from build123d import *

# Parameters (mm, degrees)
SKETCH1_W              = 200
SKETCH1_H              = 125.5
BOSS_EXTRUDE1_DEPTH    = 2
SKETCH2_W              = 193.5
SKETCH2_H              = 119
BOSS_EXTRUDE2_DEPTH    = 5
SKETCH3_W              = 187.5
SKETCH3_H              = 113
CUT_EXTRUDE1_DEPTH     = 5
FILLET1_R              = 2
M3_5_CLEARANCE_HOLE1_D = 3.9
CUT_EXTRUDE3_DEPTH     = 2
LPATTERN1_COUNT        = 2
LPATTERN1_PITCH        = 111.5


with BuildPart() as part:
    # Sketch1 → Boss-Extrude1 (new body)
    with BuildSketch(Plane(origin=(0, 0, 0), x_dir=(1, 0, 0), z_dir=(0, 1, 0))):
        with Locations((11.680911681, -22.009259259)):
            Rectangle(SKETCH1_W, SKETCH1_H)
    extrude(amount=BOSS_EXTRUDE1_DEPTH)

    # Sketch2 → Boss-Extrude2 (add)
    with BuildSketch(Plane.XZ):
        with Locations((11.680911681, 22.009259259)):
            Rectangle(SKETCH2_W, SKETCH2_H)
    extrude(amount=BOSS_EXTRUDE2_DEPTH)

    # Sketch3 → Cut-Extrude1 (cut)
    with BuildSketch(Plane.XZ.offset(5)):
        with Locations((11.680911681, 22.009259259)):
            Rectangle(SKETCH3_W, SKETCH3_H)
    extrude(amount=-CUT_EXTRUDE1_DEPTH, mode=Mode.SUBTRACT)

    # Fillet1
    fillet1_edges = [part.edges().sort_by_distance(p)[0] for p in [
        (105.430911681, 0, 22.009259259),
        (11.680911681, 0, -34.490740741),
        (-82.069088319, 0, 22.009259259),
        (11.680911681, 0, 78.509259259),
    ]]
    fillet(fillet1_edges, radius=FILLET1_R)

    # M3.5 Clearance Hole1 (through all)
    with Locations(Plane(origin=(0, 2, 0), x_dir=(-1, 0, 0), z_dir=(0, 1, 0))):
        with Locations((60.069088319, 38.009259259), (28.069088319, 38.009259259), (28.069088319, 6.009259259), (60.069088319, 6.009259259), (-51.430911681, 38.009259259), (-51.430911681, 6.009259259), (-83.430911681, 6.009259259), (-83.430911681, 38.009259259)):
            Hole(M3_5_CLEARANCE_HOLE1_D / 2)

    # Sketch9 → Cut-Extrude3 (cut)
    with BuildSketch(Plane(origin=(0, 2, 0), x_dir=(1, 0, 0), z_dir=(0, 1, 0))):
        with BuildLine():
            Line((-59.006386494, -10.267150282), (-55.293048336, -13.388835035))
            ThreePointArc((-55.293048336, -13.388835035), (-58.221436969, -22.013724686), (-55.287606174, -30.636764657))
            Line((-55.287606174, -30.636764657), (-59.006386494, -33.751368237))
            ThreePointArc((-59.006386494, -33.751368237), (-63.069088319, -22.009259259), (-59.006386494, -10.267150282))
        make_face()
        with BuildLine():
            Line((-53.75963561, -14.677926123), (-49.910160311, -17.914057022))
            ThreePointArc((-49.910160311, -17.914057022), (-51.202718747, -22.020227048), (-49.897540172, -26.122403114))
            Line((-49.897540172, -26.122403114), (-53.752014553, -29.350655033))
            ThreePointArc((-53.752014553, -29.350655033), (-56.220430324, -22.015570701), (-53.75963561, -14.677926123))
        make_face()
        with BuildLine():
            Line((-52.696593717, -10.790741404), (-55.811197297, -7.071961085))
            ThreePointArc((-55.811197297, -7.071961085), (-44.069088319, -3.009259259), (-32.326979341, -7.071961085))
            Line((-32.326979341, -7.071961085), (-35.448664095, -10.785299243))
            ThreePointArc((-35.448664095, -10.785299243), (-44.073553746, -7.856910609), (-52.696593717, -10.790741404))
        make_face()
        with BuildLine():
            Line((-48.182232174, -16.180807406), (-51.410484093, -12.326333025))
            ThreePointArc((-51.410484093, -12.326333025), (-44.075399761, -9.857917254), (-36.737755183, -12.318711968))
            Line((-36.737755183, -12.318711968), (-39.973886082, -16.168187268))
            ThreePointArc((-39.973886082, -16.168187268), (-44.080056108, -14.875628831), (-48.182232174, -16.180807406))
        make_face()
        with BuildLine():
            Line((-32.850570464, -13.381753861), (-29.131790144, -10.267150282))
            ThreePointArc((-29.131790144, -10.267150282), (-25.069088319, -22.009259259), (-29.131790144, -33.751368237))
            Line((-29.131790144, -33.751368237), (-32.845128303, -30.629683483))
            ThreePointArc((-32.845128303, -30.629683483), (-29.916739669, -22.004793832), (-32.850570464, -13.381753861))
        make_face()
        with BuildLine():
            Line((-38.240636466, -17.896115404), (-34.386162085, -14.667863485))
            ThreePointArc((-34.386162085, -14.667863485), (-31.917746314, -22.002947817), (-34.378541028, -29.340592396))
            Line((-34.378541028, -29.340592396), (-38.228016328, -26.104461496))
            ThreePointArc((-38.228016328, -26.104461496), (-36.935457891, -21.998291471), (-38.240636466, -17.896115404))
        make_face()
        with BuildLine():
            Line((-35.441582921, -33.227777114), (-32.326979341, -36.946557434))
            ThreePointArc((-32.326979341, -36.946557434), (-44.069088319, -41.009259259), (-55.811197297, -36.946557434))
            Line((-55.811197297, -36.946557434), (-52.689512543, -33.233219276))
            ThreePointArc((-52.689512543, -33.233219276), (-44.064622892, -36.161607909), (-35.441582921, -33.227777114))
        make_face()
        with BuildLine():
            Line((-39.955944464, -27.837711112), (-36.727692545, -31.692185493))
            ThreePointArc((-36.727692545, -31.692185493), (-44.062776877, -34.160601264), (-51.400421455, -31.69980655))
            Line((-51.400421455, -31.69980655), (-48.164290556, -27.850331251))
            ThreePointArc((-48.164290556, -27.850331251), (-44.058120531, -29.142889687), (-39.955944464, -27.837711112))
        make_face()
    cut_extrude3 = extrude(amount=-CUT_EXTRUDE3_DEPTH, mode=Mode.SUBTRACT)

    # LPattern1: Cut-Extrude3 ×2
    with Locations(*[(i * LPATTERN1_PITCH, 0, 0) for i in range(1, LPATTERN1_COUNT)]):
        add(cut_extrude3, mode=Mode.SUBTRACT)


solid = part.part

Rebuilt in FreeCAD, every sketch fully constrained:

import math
import FreeCAD as App
import Part
import Sketcher
Q = App.Units.Quantity


def edges_at(feature, points):
    """Names of the edges that pass closest to the given points."""
    edges = feature.Shape.Edges
    near = lambda p: min(range(len(edges)), key=lambda i: edges[i].distToShape(Part.Vertex(*p))[0])
    return sorted({f"Edge{near(p) + 1}" for p in points})

doc = App.newDocument("Part")
body = doc.addObject("PartDesign::Body", "Body")

# Sketch on XZ plane
sketch1 = body.newObject("Sketcher::SketchObject", "Sketch")
sketch1.AttachmentSupport = (doc.getObject("XZ_Plane"), [""])
sketch1.MapMode = "FlatFace"
sketch1.addGeometry(Part.LineSegment(App.Vector(-88.319088, -40.740741, 0), App.Vector(-88.319088, 84.759259, 0)), False)
sketch1.addGeometry(Part.LineSegment(App.Vector(-88.319088, 84.759259, 0), App.Vector(111.680912, 84.759259, 0)), False)
sketch1.addGeometry(Part.LineSegment(App.Vector(111.680912, 84.759259, 0), App.Vector(111.680912, -40.740741, 0)), False)
sketch1.addGeometry(Part.LineSegment(App.Vector(111.680912, -40.740741, 0), App.Vector(-88.319088, -40.740741, 0)), False)
sketch1.addConstraint(Sketcher.Constraint("Coincident", 0, 2, 1, 1))
sketch1.addConstraint(Sketcher.Constraint("Coincident", 1, 2, 2, 1))
sketch1.addConstraint(Sketcher.Constraint("Coincident", 2, 2, 3, 1))
sketch1.addConstraint(Sketcher.Constraint("Coincident", 3, 2, 0, 1))
sketch1.addConstraint(Sketcher.Constraint("Vertical", 0))
sketch1.addConstraint(Sketcher.Constraint("Horizontal", 1))
sketch1.addConstraint(Sketcher.Constraint("Vertical", 2))
sketch1.addConstraint(Sketcher.Constraint("Horizontal", 3))
sketch1.addConstraint(Sketcher.Constraint("DistanceX", 1, 1, 1, 2, Q("200 mm")))
sketch1.addConstraint(Sketcher.Constraint("DistanceY", 0, 1, 0, 2, Q("125.5 mm")))
sketch1.addConstraint(Sketcher.Constraint("DistanceX", 0, 2, -1, 1, Q("88.319088 mm")))
sketch1.addConstraint(Sketcher.Constraint("DistanceY", -1, 1, 0, 2, Q("84.759259 mm")))
pad1 = body.newObject("PartDesign::Pad", "Pad")
pad1.Profile = sketch1
pad1.Length = 2
pad1.Reversed = True

# Sketch on XZ plane
sketch2 = body.newObject("Sketcher::SketchObject", "Sketch001")
sketch2.AttachmentSupport = (doc.getObject("XZ_Plane"), [""])
sketch2.MapMode = "FlatFace"
sketch2.addGeometry(Part.LineSegment(App.Vector(-85.069088, 81.509259, 0), App.Vector(-85.069088, -37.490741, 0)), False)
sketch2.addGeometry(Part.LineSegment(App.Vector(-85.069088, -37.490741, 0), App.Vector(108.430912, -37.490741, 0)), False)
sketch2.addGeometry(Part.LineSegment(App.Vector(108.430912, -37.490741, 0), App.Vector(108.430912, 81.509259, 0)), False)
sketch2.addGeometry(Part.LineSegment(App.Vector(108.430912, 81.509259, 0), App.Vector(-85.069088, 81.509259, 0)), False)
sketch2.addConstraint(Sketcher.Constraint("Coincident", 0, 2, 1, 1))
sketch2.addConstraint(Sketcher.Constraint("Coincident", 1, 2, 2, 1))
sketch2.addConstraint(Sketcher.Constraint("Coincident", 2, 2, 3, 1))
sketch2.addConstraint(Sketcher.Constraint("Coincident", 3, 2, 0, 1))
sketch2.addConstraint(Sketcher.Constraint("Vertical", 0))
sketch2.addConstraint(Sketcher.Constraint("Horizontal", 1))
sketch2.addConstraint(Sketcher.Constraint("Vertical", 2))
sketch2.addConstraint(Sketcher.Constraint("Horizontal", 3))
sketch2.addConstraint(Sketcher.Constraint("DistanceY", 0, 2, 0, 1, Q("119 mm")))
sketch2.addConstraint(Sketcher.Constraint("DistanceX", 1, 1, 1, 2, Q("193.5 mm")))
sketch2.addConstraint(Sketcher.Constraint("DistanceX", 0, 2, -1, 1, Q("85.069088 mm")))
sketch2.addConstraint(Sketcher.Constraint("DistanceY", 0, 2, -1, 1, Q("37.490741 mm")))
pad2 = body.newObject("PartDesign::Pad", "Pad001")
pad2.Profile = sketch2
pad2.Length = 5

# Sketch on XZ plane
sketch3 = body.newObject("Sketcher::SketchObject", "Sketch002")
sketch3.AttachmentSupport = (doc.getObject("XZ_Plane"), [""])
sketch3.MapMode = "FlatFace"
sketch3.AttachmentOffset = App.Placement(App.Vector(0, 0, 5), App.Rotation())
sketch3.addGeometry(Part.LineSegment(App.Vector(-82.069088, 78.509259, 0), App.Vector(-82.069088, -34.490741, 0)), False)
sketch3.addGeometry(Part.LineSegment(App.Vector(-82.069088, -34.490741, 0), App.Vector(105.430912, -34.490741, 0)), False)
sketch3.addGeometry(Part.LineSegment(App.Vector(105.430912, -34.490741, 0), App.Vector(105.430912, 78.509259, 0)), False)
sketch3.addGeometry(Part.LineSegment(App.Vector(105.430912, 78.509259, 0), App.Vector(-82.069088, 78.509259, 0)), False)
sketch3.addConstraint(Sketcher.Constraint("Coincident", 0, 2, 1, 1))
sketch3.addConstraint(Sketcher.Constraint("Coincident", 1, 2, 2, 1))
sketch3.addConstraint(Sketcher.Constraint("Coincident", 2, 2, 3, 1))
sketch3.addConstraint(Sketcher.Constraint("Coincident", 3, 2, 0, 1))
sketch3.addConstraint(Sketcher.Constraint("Vertical", 0))
sketch3.addConstraint(Sketcher.Constraint("Horizontal", 1))
sketch3.addConstraint(Sketcher.Constraint("Vertical", 2))
sketch3.addConstraint(Sketcher.Constraint("Horizontal", 3))
sketch3.addConstraint(Sketcher.Constraint("DistanceY", 0, 2, 0, 1, Q("113 mm")))
sketch3.addConstraint(Sketcher.Constraint("DistanceX", 1, 1, 1, 2, Q("187.5 mm")))
sketch3.addConstraint(Sketcher.Constraint("DistanceX", 0, 2, -1, 1, Q("82.069088 mm")))
sketch3.addConstraint(Sketcher.Constraint("DistanceY", 0, 2, -1, 1, Q("34.490741 mm")))
pocket1 = body.newObject("PartDesign::Pocket", "Pocket")
pocket1.Profile = sketch3
pocket1.Length = 5
doc.recompute()

fillet = body.newObject("PartDesign::Fillet", "Fillet")
fillet.Base = (pocket1, edges_at(pocket1, [
    (105.431, 0, 22.009),
    (11.681, 0, -34.491),
    (-82.069, 0, 22.009),
    (11.681, 0, 78.509),
]))
fillet.Radius = 2

# Sketch on XZ plane
sketch4 = body.newObject("Sketcher::SketchObject", "Sketch003")
sketch4.AttachmentSupport = (doc.getObject("XZ_Plane"), [""])
sketch4.MapMode = "FlatFace"
sketch4.AttachmentOffset = App.Placement(App.Vector(0, 0, -2), App.Rotation())
sketch4.addGeometry(Part.Circle(App.Vector(-60.069088, 38.009259, 0), App.Vector(0, 0, 1), 1.95), False)
sketch4.addGeometry(Part.Circle(App.Vector(-28.069088, 38.009259, 0), App.Vector(0, 0, 1), 1.95), False)
sketch4.addGeometry(Part.Circle(App.Vector(-28.069088, 6.009259, 0), App.Vector(0, 0, 1), 1.95), False)
sketch4.addGeometry(Part.Circle(App.Vector(-60.069088, 6.009259, 0), App.Vector(0, 0, 1), 1.95), False)
sketch4.addGeometry(Part.Circle(App.Vector(51.430912, 38.009259, 0), App.Vector(0, 0, 1), 1.95), False)
sketch4.addGeometry(Part.Circle(App.Vector(51.430912, 6.009259, 0), App.Vector(0, 0, 1), 1.95), False)
sketch4.addGeometry(Part.Circle(App.Vector(83.430912, 6.009259, 0), App.Vector(0, 0, 1), 1.95), False)
sketch4.addGeometry(Part.Circle(App.Vector(83.430912, 38.009259, 0), App.Vector(0, 0, 1), 1.95), False)
sketch4.addConstraint(Sketcher.Constraint("Equal", 0, 1))
sketch4.addConstraint(Sketcher.Constraint("Equal", 1, 2))
sketch4.addConstraint(Sketcher.Constraint("Equal", 2, 3))
sketch4.addConstraint(Sketcher.Constraint("Equal", 3, 4))
sketch4.addConstraint(Sketcher.Constraint("Equal", 4, 5))
sketch4.addConstraint(Sketcher.Constraint("Equal", 5, 6))
sketch4.addConstraint(Sketcher.Constraint("Equal", 6, 7))
sketch4.addConstraint(Sketcher.Constraint("Horizontal", 0, 3, 1, 3))
sketch4.addConstraint(Sketcher.Constraint("Horizontal", 2, 3, 3, 3))
sketch4.addConstraint(Sketcher.Constraint("Horizontal", 1, 3, 4, 3))
sketch4.addConstraint(Sketcher.Constraint("Horizontal", 3, 3, 5, 3))
sketch4.addConstraint(Sketcher.Constraint("Horizontal", 5, 3, 6, 3))
sketch4.addConstraint(Sketcher.Constraint("Horizontal", 4, 3, 7, 3))
sketch4.addConstraint(Sketcher.Constraint("Vertical", 1, 3, 2, 3))
sketch4.addConstraint(Sketcher.Constraint("Vertical", 0, 3, 3, 3))
sketch4.addConstraint(Sketcher.Constraint("Vertical", 4, 3, 5, 3))
sketch4.addConstraint(Sketcher.Constraint("Vertical", 6, 3, 7, 3))
sketch4.addConstraint(Sketcher.Constraint("Diameter", 0, Q("3.9 mm")))
sketch4.addConstraint(Sketcher.Constraint("DistanceX", 0, 3, 1, 3, Q("32 mm")))
sketch4.addConstraint(Sketcher.Constraint("DistanceY", 2, 3, 1, 3, Q("32 mm")))
sketch4.addConstraint(Sketcher.Constraint("DistanceX", 5, 3, 6, 3, Q("32 mm")))
sketch4.addConstraint(Sketcher.Constraint("DistanceX", 1, 3, 4, 3, Q("79.5 mm")))
sketch4.addConstraint(Sketcher.Constraint("DistanceX", 0, 3, -1, 1, Q("60.069088 mm")))
sketch4.addConstraint(Sketcher.Constraint("DistanceY", -1, 1, 0, 3, Q("38.009259 mm")))
doc.recompute()
hole = body.newObject("PartDesign::Hole", "Hole")
hole.Profile = sketch4
hole.ThreadType = "None"
hole.Diameter = 3.9
hole.DepthType = "ThroughAll"
hole.Reversed = True

# Sketch on XZ plane
sketch5 = body.newObject("Sketcher::SketchObject", "Sketch004")
sketch5.AttachmentSupport = (doc.getObject("XZ_Plane"), [""])
sketch5.MapMode = "FlatFace"
sketch5.AttachmentOffset = App.Placement(App.Vector(0, 0, -2), App.Rotation())
sketch5.addGeometry(Part.LineSegment(App.Vector(-55.293048, 13.388835, 0), App.Vector(-59.006386, 10.26715, 0)), False)
sketch5.addGeometry(Part.ArcOfCircle(Part.Circle(App.Vector(-44.069088, 22.009259, 0), App.Vector(0, 0, 1), 19), math.radians(141.829351), math.radians(218.170649)), False)
sketch5.addGeometry(Part.LineSegment(App.Vector(-59.006386, 33.751368, 0), App.Vector(-55.287606, 30.636765, 0)), False)
sketch5.addGeometry(Part.ArcOfCircle(Part.Circle(App.Vector(-44.069088, 22.009259, 0), App.Vector(0, 0, 1), 14.152349), math.radians(142.438223), math.radians(217.525621)), False)
sketch5.addGeometry(Part.LineSegment(App.Vector(-49.91016, 17.914057, 0), App.Vector(-53.759636, 14.677926, 0)), False)
sketch5.addGeometry(Part.ArcOfCircle(Part.Circle(App.Vector(-44.069088, 22.009259, 0), App.Vector(0, 0, 1), 12.151344), math.radians(142.831343), math.radians(217.109138)), False)
sketch5.addGeometry(Part.LineSegment(App.Vector(-53.752015, 29.350655, 0), App.Vector(-49.89754, 26.122403, 0)), False)
sketch5.addGeometry(Part.ArcOfCircle(Part.Circle(App.Vector(-44.069088, 22.009259, 0), App.Vector(0, 0, 1), 7.133639), math.radians(144.789346), math.radians(215.034473)), False)
sketch5.addGeometry(Part.LineSegment(App.Vector(-55.811197, 7.071961, 0), App.Vector(-52.696594, 10.790741, 0)), False)
sketch5.addGeometry(Part.ArcOfCircle(Part.Circle(App.Vector(-44.069088, 22.009259, 0), App.Vector(0, 0, 1), 14.152349), math.radians(-127.561777), math.radians(-52.474379)), False)
sketch5.addGeometry(Part.LineSegment(App.Vector(-35.448664, 10.785299, 0), App.Vector(-32.326979, 7.071961, 0)), False)
sketch5.addGeometry(Part.ArcOfCircle(Part.Circle(App.Vector(-44.069088, 22.009259, 0), App.Vector(0, 0, 1), 19), math.radians(-128.170649), math.radians(-51.829351)), False)
sketch5.addGeometry(Part.LineSegment(App.Vector(-51.410484, 12.326333, 0), App.Vector(-48.182232, 16.180807, 0)), False)
sketch5.addGeometry(Part.ArcOfCircle(Part.Circle(App.Vector(-44.069088, 22.009259, 0), App.Vector(0, 0, 1), 7.133639), math.radians(-125.210654), math.radians(-54.965527)), False)
sketch5.addGeometry(Part.LineSegment(App.Vector(-39.973886, 16.168187, 0), App.Vector(-36.737755, 12.318712, 0)), False)
sketch5.addGeometry(Part.ArcOfCircle(Part.Circle(App.Vector(-44.069088, 22.009259, 0), App.Vector(0, 0, 1), 12.151344), math.radians(-127.168657), math.radians(-52.890862)), False)
sketch5.addGeometry(Part.LineSegment(App.Vector(-29.13179, 10.26715, 0), App.Vector(-32.85057, 13.381754, 0)), False)
sketch5.addGeometry(Part.ArcOfCircle(Part.Circle(App.Vector(-44.069088, 22.009259, 0), App.Vector(0, 0, 1), 14.152349), math.radians(-37.561777), math.radians(37.525621)), False)
sketch5.addGeometry(Part.LineSegment(App.Vector(-32.845128, 30.629683, 0), App.Vector(-29.13179, 33.751368, 0)), False)
sketch5.addGeometry(Part.ArcOfCircle(Part.Circle(App.Vector(-44.069088, 22.009259, 0), App.Vector(0, 0, 1), 19), math.radians(-38.170649), math.radians(38.170649)), False)
sketch5.addGeometry(Part.LineSegment(App.Vector(-34.386162, 14.667863, 0), App.Vector(-38.240636, 17.896115, 0)), False)
sketch5.addGeometry(Part.ArcOfCircle(Part.Circle(App.Vector(-44.069088, 22.009259, 0), App.Vector(0, 0, 1), 7.133639), math.radians(-35.210654), math.radians(35.034473)), False)
sketch5.addGeometry(Part.LineSegment(App.Vector(-38.228016, 26.104461, 0), App.Vector(-34.378541, 29.340592, 0)), False)
sketch5.addGeometry(Part.ArcOfCircle(Part.Circle(App.Vector(-44.069088, 22.009259, 0), App.Vector(0, 0, 1), 12.151344), math.radians(-37.168657), math.radians(37.109138)), False)
sketch5.addGeometry(Part.LineSegment(App.Vector(-32.326979, 36.946557, 0), App.Vector(-35.441583, 33.227777, 0)), False)
sketch5.addGeometry(Part.ArcOfCircle(Part.Circle(App.Vector(-44.069088, 22.009259, 0), App.Vector(0, 0, 1), 14.152349), math.radians(52.438223), math.radians(127.525621)), False)
sketch5.addGeometry(Part.LineSegment(App.Vector(-52.689513, 33.233219, 0), App.Vector(-55.811197, 36.946557, 0)), False)
sketch5.addGeometry(Part.ArcOfCircle(Part.Circle(App.Vector(-44.069088, 22.009259, 0), App.Vector(0, 0, 1), 19), math.radians(51.829351), math.radians(128.170649)), False)
sketch5.addGeometry(Part.LineSegment(App.Vector(-36.727693, 31.692185, 0), App.Vector(-39.955944, 27.837711, 0)), False)
sketch5.addGeometry(Part.ArcOfCircle(Part.Circle(App.Vector(-44.069088, 22.009259, 0), App.Vector(0, 0, 1), 7.133639), math.radians(54.789346), math.radians(125.034473)), False)
sketch5.addGeometry(Part.LineSegment(App.Vector(-48.164291, 27.850331, 0), App.Vector(-51.400421, 31.699807, 0)), False)
sketch5.addGeometry(Part.ArcOfCircle(Part.Circle(App.Vector(-44.069088, 22.009259, 0), App.Vector(0, 0, 1), 12.151344), math.radians(52.831343), math.radians(127.109138)), False)
sketch5.addConstraint(Sketcher.Constraint("Coincident", 0, 2, 1, 2))
sketch5.addConstraint(Sketcher.Constraint("Coincident", 1, 1, 2, 1))
sketch5.addConstraint(Sketcher.Constraint("Coincident", 2, 2, 3, 1))
sketch5.addConstraint(Sketcher.Constraint("Coincident", 3, 2, 0, 1))
sketch5.addConstraint(Sketcher.Constraint("Coincident", 4, 2, 5, 2))
sketch5.addConstraint(Sketcher.Constraint("Coincident", 5, 1, 6, 1))
sketch5.addConstraint(Sketcher.Constraint("Coincident", 6, 2, 7, 1))
sketch5.addConstraint(Sketcher.Constraint("Coincident", 7, 2, 4, 1))
sketch5.addConstraint(Sketcher.Constraint("Coincident", 8, 2, 9, 1))
sketch5.addConstraint(Sketcher.Constraint("Coincident", 9, 2, 10, 1))
sketch5.addConstraint(Sketcher.Constraint("Coincident", 10, 2, 11, 2))
sketch5.addConstraint(Sketcher.Constraint("Coincident", 11, 1, 8, 1))
sketch5.addConstraint(Sketcher.Constraint("Coincident", 12, 2, 13, 1))
sketch5.addConstraint(Sketcher.Constraint("Coincident", 13, 2, 14, 1))
sketch5.addConstraint(Sketcher.Constraint("Coincident", 14, 2, 15, 2))
sketch5.addConstraint(Sketcher.Constraint("Coincident", 15, 1, 12, 1))
sketch5.addConstraint(Sketcher.Constraint("Coincident", 16, 2, 17, 1))
sketch5.addConstraint(Sketcher.Constraint("Coincident", 17, 2, 18, 1))
sketch5.addConstraint(Sketcher.Constraint("Coincident", 18, 2, 19, 2))
sketch5.addConstraint(Sketcher.Constraint("Coincident", 19, 1, 16, 1))
sketch5.addConstraint(Sketcher.Constraint("Coincident", 20, 2, 21, 1))
sketch5.addConstraint(Sketcher.Constraint("Coincident", 21, 2, 22, 1))
sketch5.addConstraint(Sketcher.Constraint("Coincident", 22, 2, 23, 2))
sketch5.addConstraint(Sketcher.Constraint("Coincident", 23, 1, 20, 1))
sketch5.addConstraint(Sketcher.Constraint("Coincident", 24, 2, 25, 1))
sketch5.addConstraint(Sketcher.Constraint("Coincident", 25, 2, 26, 1))
sketch5.addConstraint(Sketcher.Constraint("Coincident", 26, 2, 27, 2))
sketch5.addConstraint(Sketcher.Constraint("Coincident", 27, 1, 24, 1))
sketch5.addConstraint(Sketcher.Constraint("Coincident", 28, 2, 29, 1))
sketch5.addConstraint(Sketcher.Constraint("Coincident", 29, 2, 30, 1))
sketch5.addConstraint(Sketcher.Constraint("Coincident", 30, 2, 31, 2))
sketch5.addConstraint(Sketcher.Constraint("Coincident", 31, 1, 28, 1))
sketch5.addConstraint(Sketcher.Constraint("Coincident", 3, 3, 1, 3))
sketch5.addConstraint(Sketcher.Constraint("Coincident", 5, 3, 1, 3))
sketch5.addConstraint(Sketcher.Constraint("Coincident", 7, 3, 1, 3))
sketch5.addConstraint(Sketcher.Constraint("Coincident", 9, 3, 1, 3))
sketch5.addConstraint(Sketcher.Constraint("Coincident", 11, 3, 1, 3))
sketch5.addConstraint(Sketcher.Constraint("Coincident", 13, 3, 1, 3))
sketch5.addConstraint(Sketcher.Constraint("Coincident", 15, 3, 1, 3))
sketch5.addConstraint(Sketcher.Constraint("Coincident", 17, 3, 1, 3))
sketch5.addConstraint(Sketcher.Constraint("Coincident", 19, 3, 1, 3))
sketch5.addConstraint(Sketcher.Constraint("Coincident", 21, 3, 1, 3))
sketch5.addConstraint(Sketcher.Constraint("Coincident", 23, 3, 1, 3))
sketch5.addConstraint(Sketcher.Constraint("Coincident", 25, 3, 1, 3))
sketch5.addConstraint(Sketcher.Constraint("Coincident", 27, 3, 1, 3))
sketch5.addConstraint(Sketcher.Constraint("Coincident", 29, 3, 1, 3))
sketch5.addConstraint(Sketcher.Constraint("Coincident", 31, 3, 1, 3))
sketch5.addConstraint(Sketcher.Constraint("Equal", 3, 9))
sketch5.addConstraint(Sketcher.Constraint("Equal", 1, 11))
sketch5.addConstraint(Sketcher.Constraint("Equal", 7, 13))
sketch5.addConstraint(Sketcher.Constraint("Equal", 5, 15))
sketch5.addConstraint(Sketcher.Constraint("Equal", 9, 17))
sketch5.addConstraint(Sketcher.Constraint("Equal", 11, 19))
sketch5.addConstraint(Sketcher.Constraint("Equal", 13, 21))
sketch5.addConstraint(Sketcher.Constraint("Equal", 15, 23))
sketch5.addConstraint(Sketcher.Constraint("Equal", 17, 25))
sketch5.addConstraint(Sketcher.Constraint("Equal", 19, 27))
sketch5.addConstraint(Sketcher.Constraint("Equal", 21, 29))
sketch5.addConstraint(Sketcher.Constraint("Equal", 23, 31))
sketch5.addConstraint(Sketcher.Constraint("Parallel", 0, 4))
sketch5.addConstraint(Sketcher.Constraint("Parallel", 2, 6))
sketch5.addConstraint(Sketcher.Constraint("Perpendicular", 6, 8))
sketch5.addConstraint(Sketcher.Constraint("Perpendicular", 4, 10))
sketch5.addConstraint(Sketcher.Constraint("Parallel", 8, 12))
sketch5.addConstraint(Sketcher.Constraint("Parallel", 10, 14))
sketch5.addConstraint(Sketcher.Constraint("Perpendicular", 12, 16))
sketch5.addConstraint(Sketcher.Constraint("Perpendicular", 14, 18))
sketch5.addConstraint(Sketcher.Constraint("Parallel", 16, 20))
sketch5.addConstraint(Sketcher.Constraint("Parallel", 18, 22))
sketch5.addConstraint(Sketcher.Constraint("Perpendicular", 20, 24))
sketch5.addConstraint(Sketcher.Constraint("Perpendicular", 22, 26))
sketch5.addConstraint(Sketcher.Constraint("Parallel", 24, 28))
sketch5.addConstraint(Sketcher.Constraint("Parallel", 26, 30))
sketch5.addConstraint(Sketcher.Constraint("Horizontal", 10, 2, 11, 1))
sketch5.addConstraint(Sketcher.Constraint("Horizontal", 1, 1, 18, 2))
sketch5.addConstraint(Sketcher.Constraint("Horizontal", 0, 2, 19, 1))
sketch5.addConstraint(Sketcher.Constraint("Horizontal", 26, 2, 27, 1))
sketch5.addConstraint(Sketcher.Constraint("Vertical", 0, 2, 1, 1))
sketch5.addConstraint(Sketcher.Constraint("Vertical", 11, 1, 26, 2))
sketch5.addConstraint(Sketcher.Constraint("Equal", 2, 8))
sketch5.addConstraint(Sketcher.Constraint("Equal", 6, 12))
sketch5.addConstraint(Sketcher.Constraint("Equal", 4, 14))
sketch5.addConstraint(Sketcher.Constraint("Equal", 12, 20))
sketch5.addConstraint(Sketcher.Constraint("Equal", 14, 22))
sketch5.addConstraint(Sketcher.Constraint("Equal", 20, 28))
sketch5.addConstraint(Sketcher.Constraint("Equal", 22, 30))
sketch5.addConstraint(Sketcher.Constraint("Radius", 1, Q("19 mm")))
sketch5.addConstraint(Sketcher.Constraint("Radius", 3, Q("14.152349 mm")))
sketch5.addConstraint(Sketcher.Constraint("Radius", 7, Q("7.133639 mm")))
sketch5.addConstraint(Sketcher.Constraint("Radius", 5, Q("12.151344 mm")))
sketch5.addConstraint(Sketcher.Constraint("DistanceY", -1, 1, 9, 2, Q("10.785299 mm")))
sketch5.addConstraint(Sketcher.Constraint("DistanceX", 0, 2, 13, 3, Q("14.937298 mm")))
sketch5.addConstraint(Sketcher.Constraint("Distance", 2, Q("4.850782 mm")))
sketch5.addConstraint(Sketcher.Constraint("Distance", 6, Q("5.027781 mm")))
sketch5.addConstraint(Sketcher.Constraint("DistanceX", 1, 3, -1, 1, Q("44.069088 mm")))
sketch5.addConstraint(Sketcher.Constraint("DistanceY", -1, 1, 1, 3, Q("22.009259 mm")))
sketch5.addConstraint(Sketcher.Constraint("DistanceX", 7, 2, -1, 1, Q("49.91016 mm")))
pocket2 = body.newObject("PartDesign::Pocket", "Pocket001")
pocket2.Profile = sketch5
pocket2.Length = 2
pocket2.Reversed = True
doc.recompute()

linearpattern = body.newObject("PartDesign::LinearPattern", "LinearPattern")
linearpattern.Originals = [pocket2]
linearpattern.Direction = (doc.getObject("X_Axis"), [""])
linearpattern.Mode = "offset"
linearpattern.Offset = 111.5
linearpattern.Occurrences = 2
body.Tip = linearpattern

doc.recompute()
